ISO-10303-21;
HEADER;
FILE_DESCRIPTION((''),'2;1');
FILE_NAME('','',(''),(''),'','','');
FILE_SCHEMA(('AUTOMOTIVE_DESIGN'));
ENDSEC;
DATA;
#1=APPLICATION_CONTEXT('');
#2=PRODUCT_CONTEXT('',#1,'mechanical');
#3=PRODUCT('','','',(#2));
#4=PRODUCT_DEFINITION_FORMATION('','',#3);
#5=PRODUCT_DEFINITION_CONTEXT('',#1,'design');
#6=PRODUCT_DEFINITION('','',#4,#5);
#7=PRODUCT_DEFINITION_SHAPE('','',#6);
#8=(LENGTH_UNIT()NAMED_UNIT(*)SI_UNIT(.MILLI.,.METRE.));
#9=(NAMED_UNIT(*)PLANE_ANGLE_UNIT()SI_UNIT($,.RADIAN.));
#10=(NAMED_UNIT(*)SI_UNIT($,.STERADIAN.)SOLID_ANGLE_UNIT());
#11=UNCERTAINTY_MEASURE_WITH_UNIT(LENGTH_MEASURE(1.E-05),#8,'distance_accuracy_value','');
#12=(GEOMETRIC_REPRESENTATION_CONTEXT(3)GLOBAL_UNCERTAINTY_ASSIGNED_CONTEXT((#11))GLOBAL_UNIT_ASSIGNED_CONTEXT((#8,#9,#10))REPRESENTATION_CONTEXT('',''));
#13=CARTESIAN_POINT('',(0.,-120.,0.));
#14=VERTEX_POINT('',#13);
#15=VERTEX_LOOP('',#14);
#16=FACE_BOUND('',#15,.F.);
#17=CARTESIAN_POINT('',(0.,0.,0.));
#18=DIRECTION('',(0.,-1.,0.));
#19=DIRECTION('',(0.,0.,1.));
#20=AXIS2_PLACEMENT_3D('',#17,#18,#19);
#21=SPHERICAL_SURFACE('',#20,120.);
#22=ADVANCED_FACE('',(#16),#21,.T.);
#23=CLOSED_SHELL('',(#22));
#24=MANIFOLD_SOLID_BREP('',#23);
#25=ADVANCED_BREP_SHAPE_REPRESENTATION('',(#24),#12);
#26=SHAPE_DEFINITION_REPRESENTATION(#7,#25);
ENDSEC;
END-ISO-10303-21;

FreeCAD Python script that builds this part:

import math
import FreeCAD as App
import Part
import Sketcher
Q = App.Units.Quantity

doc = App.newDocument("Part")
body = doc.addObject("PartDesign::Body", "Body")

sketch1 = doc.addObject("Sketcher::SketchObject", "Sketch")
body.addObject(sketch1)
sketch1.AttachmentSupport = (doc.YZ_Plane, [""])
sketch1.MapMode = "FlatFace"
sketch1.addGeometry([
    Part.LineSegment(App.Vector(-120, 0, 0), App.Vector(120, 0, 0)),
    Part.ArcOfCircle(Part.Circle(App.Vector(0, 0, 0), App.Vector(0, 0, 1), 120), math.radians(0), math.radians(180)),
], False)
sketch1.addConstraint([
    Sketcher.Constraint("Coincident", 0, 1, 1, 2),
    Sketcher.Constraint("Coincident", 1, 1, 0, 2),
    Sketcher.Constraint("Horizontal", 0),
    Sketcher.Constraint("Coincident", 1, 3, -1, 1),
    Sketcher.Constraint("PointOnObject", 0, 1, -1),
    Sketcher.Constraint("Radius", 1, Q("120 mm")),
])
revolution = doc.addObject("PartDesign::Revolution", "Revolution")
body.addObject(revolution)
revolution.Profile = sketch1
revolution.ReferenceAxis = (sketch1, ["H_Axis"])
revolution.Angle = 360

doc.recompute()
